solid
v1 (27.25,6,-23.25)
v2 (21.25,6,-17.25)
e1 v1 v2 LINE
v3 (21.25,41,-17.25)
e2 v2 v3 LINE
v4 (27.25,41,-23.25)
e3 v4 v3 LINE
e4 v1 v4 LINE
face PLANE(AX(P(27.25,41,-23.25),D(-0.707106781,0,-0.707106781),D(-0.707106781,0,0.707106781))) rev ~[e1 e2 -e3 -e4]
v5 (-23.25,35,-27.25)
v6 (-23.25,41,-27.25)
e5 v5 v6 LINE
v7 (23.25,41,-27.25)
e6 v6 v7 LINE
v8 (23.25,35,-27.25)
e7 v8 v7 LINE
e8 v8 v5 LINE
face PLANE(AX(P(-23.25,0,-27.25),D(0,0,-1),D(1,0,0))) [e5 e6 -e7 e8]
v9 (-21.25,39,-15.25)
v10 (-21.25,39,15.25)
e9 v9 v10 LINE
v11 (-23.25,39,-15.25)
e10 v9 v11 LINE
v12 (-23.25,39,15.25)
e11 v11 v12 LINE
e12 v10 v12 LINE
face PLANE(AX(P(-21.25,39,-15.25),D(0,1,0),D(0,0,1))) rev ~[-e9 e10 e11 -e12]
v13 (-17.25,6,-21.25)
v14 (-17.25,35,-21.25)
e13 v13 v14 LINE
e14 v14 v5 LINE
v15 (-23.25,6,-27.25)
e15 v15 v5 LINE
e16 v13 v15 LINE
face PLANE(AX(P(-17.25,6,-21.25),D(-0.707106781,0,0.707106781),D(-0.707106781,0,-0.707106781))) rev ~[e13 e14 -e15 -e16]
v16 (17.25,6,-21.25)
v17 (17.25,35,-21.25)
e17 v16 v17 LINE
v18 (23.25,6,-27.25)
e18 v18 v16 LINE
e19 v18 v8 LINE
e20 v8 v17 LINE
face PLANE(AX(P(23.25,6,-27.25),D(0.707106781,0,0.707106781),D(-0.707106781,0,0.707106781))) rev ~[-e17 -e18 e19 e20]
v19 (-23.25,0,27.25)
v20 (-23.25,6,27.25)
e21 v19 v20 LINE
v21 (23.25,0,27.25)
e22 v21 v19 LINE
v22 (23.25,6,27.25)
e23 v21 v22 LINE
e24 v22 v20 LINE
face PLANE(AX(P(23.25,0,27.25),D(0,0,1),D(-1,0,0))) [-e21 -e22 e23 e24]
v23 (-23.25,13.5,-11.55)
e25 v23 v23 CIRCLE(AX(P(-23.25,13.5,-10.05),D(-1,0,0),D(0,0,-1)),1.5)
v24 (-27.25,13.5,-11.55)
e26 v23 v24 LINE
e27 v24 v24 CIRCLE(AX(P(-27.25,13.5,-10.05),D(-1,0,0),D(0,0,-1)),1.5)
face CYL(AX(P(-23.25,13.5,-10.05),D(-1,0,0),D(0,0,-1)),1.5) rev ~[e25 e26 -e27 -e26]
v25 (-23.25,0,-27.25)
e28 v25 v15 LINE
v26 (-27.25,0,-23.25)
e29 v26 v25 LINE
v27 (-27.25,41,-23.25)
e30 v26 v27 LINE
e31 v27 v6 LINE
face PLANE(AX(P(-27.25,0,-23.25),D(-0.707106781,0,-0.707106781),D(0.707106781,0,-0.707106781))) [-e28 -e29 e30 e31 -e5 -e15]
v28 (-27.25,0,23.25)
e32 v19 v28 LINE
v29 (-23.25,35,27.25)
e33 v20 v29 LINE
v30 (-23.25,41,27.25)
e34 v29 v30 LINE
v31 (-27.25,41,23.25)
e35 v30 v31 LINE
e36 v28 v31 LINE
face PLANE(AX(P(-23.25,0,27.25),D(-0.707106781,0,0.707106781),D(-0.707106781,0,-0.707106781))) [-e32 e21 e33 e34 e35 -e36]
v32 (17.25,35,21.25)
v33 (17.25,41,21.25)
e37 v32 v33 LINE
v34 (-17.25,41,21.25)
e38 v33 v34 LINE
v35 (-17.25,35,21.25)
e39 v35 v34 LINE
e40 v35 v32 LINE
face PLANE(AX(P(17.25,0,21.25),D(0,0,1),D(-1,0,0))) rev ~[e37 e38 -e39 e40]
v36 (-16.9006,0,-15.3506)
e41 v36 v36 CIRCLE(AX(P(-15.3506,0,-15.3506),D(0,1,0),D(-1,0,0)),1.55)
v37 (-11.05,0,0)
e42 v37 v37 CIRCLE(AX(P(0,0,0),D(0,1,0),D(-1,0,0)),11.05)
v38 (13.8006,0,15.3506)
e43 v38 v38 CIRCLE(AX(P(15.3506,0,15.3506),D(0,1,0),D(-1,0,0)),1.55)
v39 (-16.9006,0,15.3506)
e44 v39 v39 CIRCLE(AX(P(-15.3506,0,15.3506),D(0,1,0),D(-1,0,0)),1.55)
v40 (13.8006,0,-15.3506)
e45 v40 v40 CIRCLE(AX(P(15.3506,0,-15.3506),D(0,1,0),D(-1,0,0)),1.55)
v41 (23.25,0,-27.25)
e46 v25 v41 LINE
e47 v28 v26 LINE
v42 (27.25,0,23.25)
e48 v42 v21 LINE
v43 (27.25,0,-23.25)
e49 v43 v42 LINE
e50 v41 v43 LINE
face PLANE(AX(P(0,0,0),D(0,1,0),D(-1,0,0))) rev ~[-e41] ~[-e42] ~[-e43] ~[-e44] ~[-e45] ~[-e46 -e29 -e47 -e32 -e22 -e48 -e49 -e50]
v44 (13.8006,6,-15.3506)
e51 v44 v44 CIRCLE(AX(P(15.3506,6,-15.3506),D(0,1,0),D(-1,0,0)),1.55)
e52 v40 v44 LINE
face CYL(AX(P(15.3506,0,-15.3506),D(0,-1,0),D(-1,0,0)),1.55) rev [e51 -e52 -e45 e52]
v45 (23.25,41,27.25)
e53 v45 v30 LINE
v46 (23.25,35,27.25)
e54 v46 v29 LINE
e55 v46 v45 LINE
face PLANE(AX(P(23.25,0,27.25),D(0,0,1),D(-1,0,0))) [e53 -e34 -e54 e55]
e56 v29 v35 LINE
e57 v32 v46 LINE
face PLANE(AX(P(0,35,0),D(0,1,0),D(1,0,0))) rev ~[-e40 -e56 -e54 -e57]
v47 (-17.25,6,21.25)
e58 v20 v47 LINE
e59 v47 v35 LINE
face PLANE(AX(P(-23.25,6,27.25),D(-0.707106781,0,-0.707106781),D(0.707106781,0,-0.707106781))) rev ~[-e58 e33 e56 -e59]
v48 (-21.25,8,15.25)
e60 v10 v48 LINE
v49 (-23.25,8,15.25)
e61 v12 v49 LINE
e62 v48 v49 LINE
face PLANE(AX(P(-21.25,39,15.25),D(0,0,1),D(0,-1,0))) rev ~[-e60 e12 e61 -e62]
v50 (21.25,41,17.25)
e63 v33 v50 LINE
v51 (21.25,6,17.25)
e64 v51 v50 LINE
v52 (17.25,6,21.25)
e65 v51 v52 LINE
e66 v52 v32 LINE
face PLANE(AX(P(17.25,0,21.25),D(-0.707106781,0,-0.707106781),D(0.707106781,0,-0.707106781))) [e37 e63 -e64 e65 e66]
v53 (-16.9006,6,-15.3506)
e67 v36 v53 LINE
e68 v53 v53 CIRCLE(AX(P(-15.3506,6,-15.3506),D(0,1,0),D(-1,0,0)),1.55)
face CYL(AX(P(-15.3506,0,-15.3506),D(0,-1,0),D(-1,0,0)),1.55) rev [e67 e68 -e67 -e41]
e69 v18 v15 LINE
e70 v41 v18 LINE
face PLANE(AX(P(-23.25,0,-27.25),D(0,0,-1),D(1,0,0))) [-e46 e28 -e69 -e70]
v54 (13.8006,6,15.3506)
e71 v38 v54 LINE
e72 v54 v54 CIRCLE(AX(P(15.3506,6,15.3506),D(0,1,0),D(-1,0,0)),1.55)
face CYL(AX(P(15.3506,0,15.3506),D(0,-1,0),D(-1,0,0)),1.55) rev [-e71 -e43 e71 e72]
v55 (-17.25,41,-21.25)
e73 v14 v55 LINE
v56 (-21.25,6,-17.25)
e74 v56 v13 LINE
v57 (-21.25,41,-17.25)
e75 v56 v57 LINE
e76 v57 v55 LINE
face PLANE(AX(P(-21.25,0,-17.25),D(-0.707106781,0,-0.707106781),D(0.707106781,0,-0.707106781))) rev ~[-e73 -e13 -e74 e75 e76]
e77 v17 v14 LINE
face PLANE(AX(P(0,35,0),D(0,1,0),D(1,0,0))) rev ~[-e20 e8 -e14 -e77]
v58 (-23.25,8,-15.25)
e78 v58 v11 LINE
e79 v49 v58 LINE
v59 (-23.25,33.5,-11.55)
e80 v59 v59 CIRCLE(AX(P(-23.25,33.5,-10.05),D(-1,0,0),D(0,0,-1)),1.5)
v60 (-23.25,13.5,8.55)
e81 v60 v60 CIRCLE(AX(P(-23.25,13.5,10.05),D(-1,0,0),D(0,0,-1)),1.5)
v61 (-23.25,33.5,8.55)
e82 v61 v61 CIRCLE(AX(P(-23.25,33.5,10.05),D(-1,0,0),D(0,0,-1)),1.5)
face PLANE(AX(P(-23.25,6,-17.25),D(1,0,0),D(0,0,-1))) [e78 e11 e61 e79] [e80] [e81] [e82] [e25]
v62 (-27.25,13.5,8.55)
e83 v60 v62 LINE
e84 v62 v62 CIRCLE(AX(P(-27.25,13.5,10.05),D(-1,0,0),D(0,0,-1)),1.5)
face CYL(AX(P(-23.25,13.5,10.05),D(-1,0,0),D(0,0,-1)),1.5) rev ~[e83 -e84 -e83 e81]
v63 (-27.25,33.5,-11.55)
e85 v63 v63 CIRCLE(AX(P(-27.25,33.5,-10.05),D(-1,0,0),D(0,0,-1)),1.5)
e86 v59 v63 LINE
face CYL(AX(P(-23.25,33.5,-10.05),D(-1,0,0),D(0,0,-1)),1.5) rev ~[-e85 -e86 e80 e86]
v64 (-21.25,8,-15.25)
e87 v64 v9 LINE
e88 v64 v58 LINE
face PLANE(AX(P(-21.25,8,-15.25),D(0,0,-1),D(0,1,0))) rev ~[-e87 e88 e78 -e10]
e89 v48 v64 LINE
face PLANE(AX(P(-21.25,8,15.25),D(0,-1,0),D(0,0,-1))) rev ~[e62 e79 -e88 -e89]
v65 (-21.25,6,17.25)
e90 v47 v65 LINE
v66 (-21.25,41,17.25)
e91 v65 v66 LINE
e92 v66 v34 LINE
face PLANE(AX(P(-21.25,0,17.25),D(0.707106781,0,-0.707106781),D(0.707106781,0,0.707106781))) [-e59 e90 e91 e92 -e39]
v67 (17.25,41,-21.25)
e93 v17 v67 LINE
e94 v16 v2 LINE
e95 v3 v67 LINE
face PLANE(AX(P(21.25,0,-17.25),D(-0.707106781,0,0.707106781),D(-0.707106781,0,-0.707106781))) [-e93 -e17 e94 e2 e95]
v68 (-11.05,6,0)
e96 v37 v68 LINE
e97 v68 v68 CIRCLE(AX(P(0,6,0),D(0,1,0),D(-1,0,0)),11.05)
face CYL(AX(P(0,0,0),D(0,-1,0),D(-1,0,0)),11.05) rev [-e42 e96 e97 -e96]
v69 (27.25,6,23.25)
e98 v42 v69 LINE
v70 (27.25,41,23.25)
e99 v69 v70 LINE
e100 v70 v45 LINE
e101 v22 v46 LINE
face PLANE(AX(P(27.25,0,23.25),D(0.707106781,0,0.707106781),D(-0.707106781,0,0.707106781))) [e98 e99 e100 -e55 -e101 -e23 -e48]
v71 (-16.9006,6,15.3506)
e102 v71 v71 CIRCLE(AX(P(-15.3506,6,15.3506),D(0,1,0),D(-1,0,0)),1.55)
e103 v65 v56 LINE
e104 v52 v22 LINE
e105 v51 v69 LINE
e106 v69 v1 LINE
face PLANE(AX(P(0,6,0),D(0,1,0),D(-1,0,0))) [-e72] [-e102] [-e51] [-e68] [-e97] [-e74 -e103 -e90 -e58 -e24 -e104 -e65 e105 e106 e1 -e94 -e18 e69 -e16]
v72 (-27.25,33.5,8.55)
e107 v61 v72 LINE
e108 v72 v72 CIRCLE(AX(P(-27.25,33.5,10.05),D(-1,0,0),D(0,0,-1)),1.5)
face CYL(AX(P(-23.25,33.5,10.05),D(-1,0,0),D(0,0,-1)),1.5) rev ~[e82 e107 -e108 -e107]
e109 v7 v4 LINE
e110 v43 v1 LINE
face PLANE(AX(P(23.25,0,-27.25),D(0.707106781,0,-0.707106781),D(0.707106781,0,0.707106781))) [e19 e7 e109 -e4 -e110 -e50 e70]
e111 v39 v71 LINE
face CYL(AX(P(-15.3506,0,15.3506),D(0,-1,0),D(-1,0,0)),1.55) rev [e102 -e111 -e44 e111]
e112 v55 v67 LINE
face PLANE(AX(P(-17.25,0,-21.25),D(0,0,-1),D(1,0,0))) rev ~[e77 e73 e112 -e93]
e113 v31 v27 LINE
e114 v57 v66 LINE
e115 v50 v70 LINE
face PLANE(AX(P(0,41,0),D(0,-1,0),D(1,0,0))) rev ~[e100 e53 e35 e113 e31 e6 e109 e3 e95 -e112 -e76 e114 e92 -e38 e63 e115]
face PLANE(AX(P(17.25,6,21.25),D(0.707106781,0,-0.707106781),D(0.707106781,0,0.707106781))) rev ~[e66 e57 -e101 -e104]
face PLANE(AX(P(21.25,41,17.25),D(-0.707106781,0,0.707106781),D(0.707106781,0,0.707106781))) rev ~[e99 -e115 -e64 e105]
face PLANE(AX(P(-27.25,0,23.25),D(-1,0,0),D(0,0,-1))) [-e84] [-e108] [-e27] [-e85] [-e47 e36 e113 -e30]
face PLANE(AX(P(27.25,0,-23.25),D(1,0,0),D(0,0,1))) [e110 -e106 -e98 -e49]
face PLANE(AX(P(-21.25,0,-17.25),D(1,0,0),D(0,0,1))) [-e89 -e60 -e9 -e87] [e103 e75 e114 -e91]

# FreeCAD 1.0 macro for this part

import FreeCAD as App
import Part
import Sketcher

V = App.Vector
Q = App.Units.Quantity


def add_polygon(sketch, points):
    """Adds a closed chain of lines whose ends are joined by coincident constraints."""
    first, n = sketch.GeometryCount, len(points)
    for a, b in zip(points, points[1:] + points[:1]):
        sketch.addGeometry(Part.LineSegment(App.Vector(*a, 0), App.Vector(*b, 0)), False)
    for i in range(n):
        sketch.addConstraint(Sketcher.Constraint("Coincident", first + i, 2, first + (i + 1) % n, 1))

doc = App.newDocument("Part")
body = doc.addObject("PartDesign::Body", "Body")

sketch1 = body.newObject("Sketcher::SketchObject", "Sketch")
sketch1.AttachmentSupport = (doc.getObject("XZ_Plane"), [""])
sketch1.MapMode = "FlatFace"
add_polygon(sketch1, [(-21.2, -17.2), (-21.2, 17.2), (-17.2, 21.2), (17.2, 21.2), (21.2, 17.2), (21.2, -17.2), (17.2, -21.2), (-17.2, -21.2)])
sketch1.addGeometry(Part.Circle(V(15.4, -15.4, 0), V(0, 0, 1), 1.6), False)
sketch1.addGeometry(Part.Circle(V(-15.4, -15.4, 0), V(0, 0, 1), 1.6), False)
sketch1.addGeometry(Part.Circle(V(15.4, 15.4, 0), V(0, 0, 1), 1.6), False)
sketch1.addGeometry(Part.Circle(V(0, 0, 0), V(0, 0, 1), 11.1), False)
sketch1.addGeometry(Part.Circle(V(-15.4, 15.4, 0), V(0, 0, 1), 1.6), False)
sketch1.addConstraint([
    Sketcher.Constraint("Vertical", 0),
    Sketcher.Constraint("Horizontal", 2),
    Sketcher.Constraint("Vertical", 4),
    Sketcher.Constraint("Horizontal", 6),
    Sketcher.Constraint("Coincident", 11, 3, -1, 1),
    Sketcher.Constraint("Equal", 8, 9),
    Sketcher.Constraint("Equal", 9, 10),
    Sketcher.Constraint("Equal", 10, 12),
    Sketcher.Constraint("Symmetric", 9, 3, 10, 3, -1, 1),
    Sketcher.Constraint("Symmetric", 8, 3, 12, 3, -1, 1),
    Sketcher.Constraint("Symmetric", 0, 2, 4, 2, -1, 1),
    Sketcher.Constraint("Symmetric", 1, 2, 5, 2, -1, 1),
    Sketcher.Constraint("Symmetric", 8, 3, 9, 3, -2),
    Sketcher.Constraint("Perpendicular", 1, 3),
    Sketcher.Constraint("Perpendicular", 5, 7),
    Sketcher.Constraint("Horizontal", 0, 2, 3, 2),
    Sketcher.Constraint("Horizontal", 4, 2, 7, 2),
    Sketcher.Constraint("Vertical", 2, 2, 5, 2),
    Sketcher.Constraint("Equal", 6, 0),
    Sketcher.Constraint("Diameter", 8, Q("3.1 mm")),
    Sketcher.Constraint("Diameter", 11, Q("22.1 mm")),
    Sketcher.Constraint("DistanceX", 2, 1, 2, 2, Q("34.5 mm")),
    Sketcher.Constraint("DistanceX", 0, 2, 1, 2, Q("4 mm")),
    Sketcher.Constraint("DistanceX", -1, 1, 8, 3, Q("15.3506 mm")),
    Sketcher.Constraint("DistanceY", 8, 3, -1, 1, Q("15.3506 mm")),
])
pad1 = body.newObject("PartDesign::Pad", "Pad")
pad1.Profile = sketch1
pad1.Length = 6
pad1.Reversed = True

sketch2 = body.newObject("Sketcher::SketchObject", "Sketch001")
sketch2.AttachmentSupport = (doc.getObject("XZ_Plane"), [""])
sketch2.MapMode = "FlatFace"
add_polygon(sketch2, [(23, -27), (27, -23), (27, 23), (23, 27), (-23, 27), (-27, 23), (-27, -23), (-23, -27)])
add_polygon(sketch2, [(21, 17), (21, -17), (17, -21), (-17, -21), (-21, -17), (-21, 17), (-17, 21), (17, 21)])
sketch2.addConstraint([
    Sketcher.Constraint("Vertical", 1),
    Sketcher.Constraint("Horizontal", 3),
    Sketcher.Constraint("Vertical", 5),
    Sketcher.Constraint("Horizontal", 7),
    Sketcher.Constraint("Vertical", 8),
    Sketcher.Constraint("Horizontal", 10),
    Sketcher.Constraint("Vertical", 12),
    Sketcher.Constraint("Horizontal", 14),
    Sketcher.Constraint("Symmetric", 0, 2, 4, 2, -1, 1),
    Sketcher.Constraint("Symmetric", 2, 2, 6, 2, -1, 1),
    Sketcher.Constraint("Symmetric", 8, 2, 12, 2, -1, 1),
    Sketcher.Constraint("Symmetric", 9, 2, 13, 2, -1, 1),
    Sketcher.Constraint("Perpendicular", 0, 2),
    Sketcher.Constraint("Perpendicular", 2, 4),
    Sketcher.Constraint("Perpendicular", 4, 6),
    Sketcher.Constraint("Perpendicular", 6, 9),
    Sketcher.Constraint("Perpendicular", 9, 11),
    Sketcher.Constraint("Perpendicular", 13, 15),
    Sketcher.Constraint("Horizontal", 1, 2, 4, 2),
    Sketcher.Constraint("Horizontal", 8, 2, 11, 2),
    Sketcher.Constraint("Horizontal", 12, 2, 15, 2),
    Sketcher.Constraint("Vertical", 3, 2, 6, 2),
    Sketcher.Constraint("Equal", 7, 1),
    Sketcher.Constraint("Equal", 14, 8),
    Sketcher.Constraint("Equal", 6, 9),
    Sketcher.Constraint("DistanceX", 3, 2, 3, 1, Q("46.5 mm")),
    Sketcher.Constraint("DistanceX", 10, 2, 10, 1, Q("34.5 mm")),
    Sketcher.Constraint("DistanceX", 2, 2, 1, 2, Q("4 mm")),
])
pad2 = body.newObject("PartDesign::Pad", "Pad001")
pad2.Profile = sketch2
pad2.Length = 41
pad2.Reversed = True

sketch3 = body.newObject("Sketcher::SketchObject", "Sketch002")
sketch3.AttachmentSupport = (doc.getObject("XZ_Plane"), [""])
sketch3.MapMode = "FlatFace"
sketch3.AttachmentOffset = App.Placement(V(0, 0, -41), App.Rotation())
add_polygon(sketch3, [(21, 17), (27, 23), (27, -23), (21, -17)])
sketch3.addConstraint([
    Sketcher.Constraint("Vertical", 1),
    Sketcher.Constraint("Vertical", 3),
    Sketcher.Constraint("Perpendicular", 0, 2),
    Sketcher.Constraint("Equal", 0, 2),
    Sketcher.Constraint("DistanceY", 1, 2, 1, 1, Q("46.5 mm")),
    Sketcher.Constraint("DistanceY", 3, 1, 3, 2, Q("34.5 mm")),
    Sketcher.Constraint("DistanceX", -1, 1, 0, 2, Q("27.25 mm")),
    Sketcher.Constraint("DistanceY", -1, 1, 0, 2, Q("23.25 mm")),
])
pocket1 = body.newObject("PartDesign::Pocket", "Pocket")
pocket1.Profile = sketch3
pocket1.Length = 35
pocket1.Reversed = True

sketch4 = body.newObject("Sketcher::SketchObject", "Sketch003")
sketch4.AttachmentSupport = (doc.getObject("XZ_Plane"), [""])
sketch4.MapMode = "FlatFace"
sketch4.AttachmentOffset = App.Placement(V(0, 0, -6), App.Rotation())
add_polygon(sketch4, [(17, -21), (23, -27), (-23, -27), (-17, -21)])
add_polygon(sketch4, [(17, 21), (-17, 21), (-23, 27), (23, 27)])
sketch4.addConstraint([
    Sketcher.Constraint("Horizontal", 1),
    Sketcher.Constraint("Horizontal", 3),
    Sketcher.Constraint("Horizontal", 4),
    Sketcher.Constraint("Horizontal", 6),
    Sketcher.Constraint("Symmetric", 3, 2, 4, 2, -1, 1),
    Sketcher.Constraint("Symmetric", 0, 2, 5, 2, -1, 1),
    Sketcher.Constraint("Perpendicular", 0, 2),
    Sketcher.Constraint("Perpendicular", 5, 7),
    Sketcher.Constraint("Vertical", 2, 2, 4, 2),
    Sketcher.Constraint("Vertical", 1, 2, 5, 2),
    Sketcher.Constraint("Vertical", 0, 2, 6, 2),
    Sketcher.Constraint("DistanceX", 1, 2, 1, 1, Q("46.5 mm")),
    Sketcher.Constraint("DistanceX", 3, 1, 3, 2, Q("34.5 mm")),
    Sketcher.Constraint("DistanceY", 2, 2, 4, 2, Q("42.5 mm")),
])
pocket2 = body.newObject("PartDesign::Pocket", "Pocket001")
pocket2.Profile = sketch4
pocket2.Length = 29

sketch5 = body.newObject("Sketcher::SketchObject", "Sketch004")
sketch5.AttachmentSupport = (doc.getObject("YZ_Plane"), [""])
sketch5.MapMode = "FlatFace"
sketch5.AttachmentOffset = App.Placement(V(0, 0, -21.25), App.Rotation())
add_polygon(sketch5, [(39, 15), (8, 15), (8, -15), (39, -15)])
sketch5.addConstraint([
    Sketcher.Constraint("Horizontal", 0),
    Sketcher.Constraint("Vertical", 1),
    Sketcher.Constraint("Horizontal", 2),
    Sketcher.Constraint("Vertical", 3),
    Sketcher.Constraint("DistanceX", 0, 2, 0, 1, Q("31 mm")),
    Sketcher.Constraint("DistanceY", 1, 2, 1, 1, Q("30.5 mm")),
    Sketcher.Constraint("DistanceX", -1, 1, 0, 2, Q("8 mm")),
    Sketcher.Constraint("DistanceY", -1, 1, 0, 2, Q("15.25 mm")),
])
pocket3 = body.newObject("PartDesign::Pocket", "Pocket002")
pocket3.Profile = sketch5
pocket3.Length = 2

sketch6 = body.newObject("Sketcher::SketchObject", "Sketch005")
sketch6.AttachmentSupport = (doc.getObject("YZ_Plane"), [""])
sketch6.MapMode = "FlatFace"
sketch6.AttachmentOffset = App.Placement(V(0, 0, -23.25), App.Rotation())
sketch6.addGeometry([
    Part.Circle(V(13.5, -10.1, 0), V(0, 0, 1), 1.5),
    Part.Circle(V(13.5, 10.1, 0), V(0, 0, 1), 1.5),
    Part.Circle(V(33.5, -10.1, 0), V(0, 0, 1), 1.5),
    Part.Circle(V(33.5, 10.1, 0), V(0, 0, 1), 1.5),
], False)
sketch6.addConstraint([
    Sketcher.Constraint("Equal", 0, 1),
    Sketcher.Constraint("Equal", 1, 2),
    Sketcher.Constraint("Equal", 2, 3),
    Sketcher.Constraint("Symmetric", 0, 3, 1, 3, -1),
    Sketcher.Constraint("Symmetric", 2, 3, 3, 3, -1),
    Sketcher.Constraint("Horizontal", 0, 3, 2, 3),
    Sketcher.Constraint("Diameter", 0, Q("3 mm")),
    Sketcher.Constraint("DistanceX", 0, 3, 2, 3, Q("20 mm")),
    Sketcher.Constraint("DistanceX", -1, 1, 0, 3, Q("13.5 mm")),
    Sketcher.Constraint("DistanceY", 0, 3, 1, 3, Q("20.1 mm")),
])
doc.recompute()
hole = body.newObject("PartDesign::Hole", "Hole")
hole.Profile = sketch6
hole.ThreadType = "None"
hole.Diameter = 3
hole.DepthType = "Dimension"
hole.Depth = 4
hole.DrillPoint = "Flat"

doc.recompute()
